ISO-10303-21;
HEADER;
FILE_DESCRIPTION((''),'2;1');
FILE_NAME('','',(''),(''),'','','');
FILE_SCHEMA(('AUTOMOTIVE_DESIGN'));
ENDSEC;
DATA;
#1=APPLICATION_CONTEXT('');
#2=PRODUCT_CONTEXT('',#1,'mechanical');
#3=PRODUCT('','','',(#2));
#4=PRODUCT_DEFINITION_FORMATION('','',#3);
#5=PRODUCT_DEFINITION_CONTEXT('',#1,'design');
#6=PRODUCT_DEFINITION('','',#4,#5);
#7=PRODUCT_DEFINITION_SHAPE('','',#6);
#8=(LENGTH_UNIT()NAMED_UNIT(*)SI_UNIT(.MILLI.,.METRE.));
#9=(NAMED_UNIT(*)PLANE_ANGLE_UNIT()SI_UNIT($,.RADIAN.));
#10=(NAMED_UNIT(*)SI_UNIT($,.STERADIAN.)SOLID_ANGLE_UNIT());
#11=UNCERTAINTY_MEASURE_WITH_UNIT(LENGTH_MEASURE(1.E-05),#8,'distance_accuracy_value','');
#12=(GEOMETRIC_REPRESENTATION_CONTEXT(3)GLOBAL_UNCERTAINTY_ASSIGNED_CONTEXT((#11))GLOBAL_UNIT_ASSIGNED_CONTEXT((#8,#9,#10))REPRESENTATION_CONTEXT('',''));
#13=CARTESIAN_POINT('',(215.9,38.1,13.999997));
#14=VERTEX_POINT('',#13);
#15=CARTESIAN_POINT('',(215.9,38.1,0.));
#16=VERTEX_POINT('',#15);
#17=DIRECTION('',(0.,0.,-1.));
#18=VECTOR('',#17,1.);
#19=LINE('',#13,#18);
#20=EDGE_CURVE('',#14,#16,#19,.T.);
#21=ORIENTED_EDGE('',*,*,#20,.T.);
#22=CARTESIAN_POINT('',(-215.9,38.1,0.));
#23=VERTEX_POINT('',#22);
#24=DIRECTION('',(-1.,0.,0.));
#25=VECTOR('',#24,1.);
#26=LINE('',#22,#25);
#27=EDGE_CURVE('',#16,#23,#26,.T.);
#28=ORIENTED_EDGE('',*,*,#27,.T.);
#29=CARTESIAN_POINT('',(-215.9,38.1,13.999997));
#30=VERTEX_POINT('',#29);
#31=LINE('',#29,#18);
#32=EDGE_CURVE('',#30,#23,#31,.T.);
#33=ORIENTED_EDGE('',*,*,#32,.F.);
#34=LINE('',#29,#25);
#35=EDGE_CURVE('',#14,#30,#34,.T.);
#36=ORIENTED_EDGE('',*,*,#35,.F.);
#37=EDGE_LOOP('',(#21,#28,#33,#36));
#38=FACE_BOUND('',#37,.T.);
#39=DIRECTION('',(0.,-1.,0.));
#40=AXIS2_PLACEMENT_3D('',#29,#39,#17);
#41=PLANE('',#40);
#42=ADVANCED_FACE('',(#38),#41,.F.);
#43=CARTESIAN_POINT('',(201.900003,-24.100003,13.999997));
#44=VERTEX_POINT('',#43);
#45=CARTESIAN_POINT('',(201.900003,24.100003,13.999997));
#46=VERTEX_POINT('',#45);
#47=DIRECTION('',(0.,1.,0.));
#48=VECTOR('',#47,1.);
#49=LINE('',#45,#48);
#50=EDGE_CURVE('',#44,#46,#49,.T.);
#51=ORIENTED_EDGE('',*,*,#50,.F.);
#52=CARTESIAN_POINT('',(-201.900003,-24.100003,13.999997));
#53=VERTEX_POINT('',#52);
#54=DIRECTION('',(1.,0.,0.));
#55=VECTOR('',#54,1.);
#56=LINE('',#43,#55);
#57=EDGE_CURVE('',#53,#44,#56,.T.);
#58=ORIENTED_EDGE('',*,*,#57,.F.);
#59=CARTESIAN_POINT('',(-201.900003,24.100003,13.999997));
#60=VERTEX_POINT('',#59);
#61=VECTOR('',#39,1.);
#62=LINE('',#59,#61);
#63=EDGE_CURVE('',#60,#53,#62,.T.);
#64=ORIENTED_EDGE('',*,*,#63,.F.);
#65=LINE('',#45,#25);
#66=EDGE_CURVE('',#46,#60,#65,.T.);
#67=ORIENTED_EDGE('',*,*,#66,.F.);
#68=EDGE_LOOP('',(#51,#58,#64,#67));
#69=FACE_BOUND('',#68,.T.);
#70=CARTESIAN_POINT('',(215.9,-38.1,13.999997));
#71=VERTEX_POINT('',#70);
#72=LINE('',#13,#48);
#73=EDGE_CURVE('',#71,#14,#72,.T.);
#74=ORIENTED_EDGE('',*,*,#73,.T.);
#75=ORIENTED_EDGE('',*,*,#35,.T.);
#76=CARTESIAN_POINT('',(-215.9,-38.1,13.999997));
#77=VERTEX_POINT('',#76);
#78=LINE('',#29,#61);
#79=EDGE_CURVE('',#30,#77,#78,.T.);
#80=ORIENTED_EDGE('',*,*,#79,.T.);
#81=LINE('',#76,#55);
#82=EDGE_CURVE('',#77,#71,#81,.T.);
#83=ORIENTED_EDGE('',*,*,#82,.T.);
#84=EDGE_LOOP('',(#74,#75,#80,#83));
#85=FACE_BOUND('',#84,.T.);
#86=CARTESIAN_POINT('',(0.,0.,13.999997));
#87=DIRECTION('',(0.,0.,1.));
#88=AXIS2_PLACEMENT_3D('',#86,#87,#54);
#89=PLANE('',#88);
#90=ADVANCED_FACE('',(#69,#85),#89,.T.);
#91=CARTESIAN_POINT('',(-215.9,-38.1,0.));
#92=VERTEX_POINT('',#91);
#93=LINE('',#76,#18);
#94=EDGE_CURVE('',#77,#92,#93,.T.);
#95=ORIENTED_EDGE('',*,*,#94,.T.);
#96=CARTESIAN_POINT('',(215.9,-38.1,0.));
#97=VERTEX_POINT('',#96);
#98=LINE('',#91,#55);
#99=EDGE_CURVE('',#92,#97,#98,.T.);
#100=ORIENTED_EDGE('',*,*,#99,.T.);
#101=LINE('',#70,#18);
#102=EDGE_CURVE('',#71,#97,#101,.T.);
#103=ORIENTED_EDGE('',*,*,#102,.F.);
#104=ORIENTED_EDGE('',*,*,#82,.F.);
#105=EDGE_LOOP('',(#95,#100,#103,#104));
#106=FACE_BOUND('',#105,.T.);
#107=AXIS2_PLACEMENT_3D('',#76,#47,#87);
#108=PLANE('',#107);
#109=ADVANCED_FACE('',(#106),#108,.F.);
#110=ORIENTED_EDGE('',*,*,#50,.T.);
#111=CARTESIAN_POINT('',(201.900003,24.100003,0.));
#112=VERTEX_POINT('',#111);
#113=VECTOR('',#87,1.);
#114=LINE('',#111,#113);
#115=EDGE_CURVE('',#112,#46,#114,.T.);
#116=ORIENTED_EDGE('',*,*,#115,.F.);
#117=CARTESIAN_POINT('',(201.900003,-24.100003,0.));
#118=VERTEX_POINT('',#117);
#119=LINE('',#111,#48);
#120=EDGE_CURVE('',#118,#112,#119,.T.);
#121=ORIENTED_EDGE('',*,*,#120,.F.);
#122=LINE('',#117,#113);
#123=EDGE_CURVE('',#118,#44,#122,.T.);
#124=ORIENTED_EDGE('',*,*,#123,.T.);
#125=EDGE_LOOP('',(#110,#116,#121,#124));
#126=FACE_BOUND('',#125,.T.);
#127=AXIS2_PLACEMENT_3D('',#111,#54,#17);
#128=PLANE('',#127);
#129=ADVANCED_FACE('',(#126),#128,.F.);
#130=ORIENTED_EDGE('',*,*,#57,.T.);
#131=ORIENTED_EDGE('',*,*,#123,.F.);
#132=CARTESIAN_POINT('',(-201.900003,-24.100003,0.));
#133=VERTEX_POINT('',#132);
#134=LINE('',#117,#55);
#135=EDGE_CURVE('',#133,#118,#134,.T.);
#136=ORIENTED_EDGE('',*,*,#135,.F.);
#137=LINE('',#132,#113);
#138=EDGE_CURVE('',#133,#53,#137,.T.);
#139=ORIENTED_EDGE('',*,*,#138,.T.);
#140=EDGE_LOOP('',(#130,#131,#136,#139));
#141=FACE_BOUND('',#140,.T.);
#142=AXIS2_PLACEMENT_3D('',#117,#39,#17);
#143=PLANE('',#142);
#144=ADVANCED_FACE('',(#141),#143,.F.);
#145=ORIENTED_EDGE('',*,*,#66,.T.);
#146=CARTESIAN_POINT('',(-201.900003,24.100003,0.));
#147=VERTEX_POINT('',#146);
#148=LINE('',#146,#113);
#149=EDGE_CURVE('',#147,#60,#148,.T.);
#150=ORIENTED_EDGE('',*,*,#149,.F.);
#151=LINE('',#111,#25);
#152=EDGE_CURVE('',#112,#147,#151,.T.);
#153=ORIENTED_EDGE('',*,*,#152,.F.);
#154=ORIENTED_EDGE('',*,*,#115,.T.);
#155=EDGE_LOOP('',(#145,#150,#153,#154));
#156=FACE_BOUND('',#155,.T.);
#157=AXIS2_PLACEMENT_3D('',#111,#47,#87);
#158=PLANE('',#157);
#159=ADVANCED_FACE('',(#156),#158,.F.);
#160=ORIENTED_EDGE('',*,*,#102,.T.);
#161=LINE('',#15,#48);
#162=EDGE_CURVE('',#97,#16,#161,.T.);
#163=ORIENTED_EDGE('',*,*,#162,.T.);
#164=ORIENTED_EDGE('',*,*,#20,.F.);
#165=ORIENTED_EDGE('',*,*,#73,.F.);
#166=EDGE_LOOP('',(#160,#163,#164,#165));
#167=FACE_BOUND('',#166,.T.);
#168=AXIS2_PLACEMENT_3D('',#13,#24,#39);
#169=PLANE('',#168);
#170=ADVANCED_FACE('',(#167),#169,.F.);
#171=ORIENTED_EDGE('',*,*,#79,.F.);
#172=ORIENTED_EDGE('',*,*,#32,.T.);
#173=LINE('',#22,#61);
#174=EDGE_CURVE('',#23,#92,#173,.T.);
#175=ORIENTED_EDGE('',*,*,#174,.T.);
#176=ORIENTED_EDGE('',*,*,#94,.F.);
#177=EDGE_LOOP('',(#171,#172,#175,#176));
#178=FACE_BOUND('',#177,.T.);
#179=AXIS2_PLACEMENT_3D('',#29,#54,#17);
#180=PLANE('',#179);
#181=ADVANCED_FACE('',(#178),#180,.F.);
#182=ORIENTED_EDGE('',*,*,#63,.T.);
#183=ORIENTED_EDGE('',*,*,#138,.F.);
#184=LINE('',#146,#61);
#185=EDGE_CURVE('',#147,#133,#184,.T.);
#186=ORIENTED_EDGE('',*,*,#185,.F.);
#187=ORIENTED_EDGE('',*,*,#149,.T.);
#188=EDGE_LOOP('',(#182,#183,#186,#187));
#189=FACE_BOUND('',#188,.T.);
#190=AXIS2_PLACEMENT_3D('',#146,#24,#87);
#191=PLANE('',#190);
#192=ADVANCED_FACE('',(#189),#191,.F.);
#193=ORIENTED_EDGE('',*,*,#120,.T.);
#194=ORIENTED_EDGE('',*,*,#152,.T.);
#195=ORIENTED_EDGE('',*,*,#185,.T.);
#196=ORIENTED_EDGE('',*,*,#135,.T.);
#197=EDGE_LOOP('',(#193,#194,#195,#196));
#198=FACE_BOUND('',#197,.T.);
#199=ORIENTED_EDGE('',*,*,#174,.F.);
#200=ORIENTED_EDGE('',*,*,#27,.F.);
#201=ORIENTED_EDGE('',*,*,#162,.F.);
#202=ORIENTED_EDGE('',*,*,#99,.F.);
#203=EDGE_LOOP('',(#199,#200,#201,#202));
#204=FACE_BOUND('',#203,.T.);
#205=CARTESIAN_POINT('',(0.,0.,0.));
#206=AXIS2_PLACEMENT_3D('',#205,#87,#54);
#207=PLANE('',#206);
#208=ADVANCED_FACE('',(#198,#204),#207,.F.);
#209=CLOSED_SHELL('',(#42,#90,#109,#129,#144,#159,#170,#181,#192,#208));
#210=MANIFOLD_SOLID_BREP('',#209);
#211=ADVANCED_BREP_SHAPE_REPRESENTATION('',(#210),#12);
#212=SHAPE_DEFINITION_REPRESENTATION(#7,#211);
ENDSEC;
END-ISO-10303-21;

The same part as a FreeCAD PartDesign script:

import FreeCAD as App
import Part
import Sketcher
Q = App.Units.Quantity


def add_polygon(sketch, points):
    """Adds a closed chain of lines whose ends are joined by coincident constraints."""
    first, n = sketch.GeometryCount, len(points)
    for a, b in zip(points, points[1:] + points[:1]):
        sketch.addGeometry(Part.LineSegment(App.Vector(*a, 0), App.Vector(*b, 0)), False)
    for i in range(n):
        sketch.addConstraint(Sketcher.Constraint("Coincident", first + i, 2, first + (i + 1) % n, 1))

doc = App.newDocument("Part")
body = doc.addObject("PartDesign::Body", "Body")

# Sketch on XY plane
sketch1 = doc.addObject("Sketcher::SketchObject", "Sketch")
body.addObject(sketch1)
sketch1.AttachmentSupport = (doc.XY_Plane, [""])
sketch1.MapMode = "FlatFace"
add_polygon(sketch1, [(-215.9, 38.1), (-215.9, -38.1), (215.9, -38.1), (215.9, 38.1)])  # lines 0-3
sketch1.addConstraint(Sketcher.Constraint("Vertical", 0))
sketch1.addConstraint(Sketcher.Constraint("Horizontal", 1))
sketch1.addConstraint(Sketcher.Constraint("Vertical", 2))
sketch1.addConstraint(Sketcher.Constraint("Horizontal", 3))
sketch1.addConstraint(Sketcher.Constraint("Symmetric", 0, 2, 2, 2, -1, 1))
sketch1.addConstraint(Sketcher.Constraint("DistanceX", 1, 1, 1, 2, Q("17 in")))
sketch1.addConstraint(Sketcher.Constraint("DistanceY", 0, 2, 0, 1, Q("3 in")))
pad1 = doc.addObject("PartDesign::Pad", "Pad")
body.addObject(pad1)
pad1.Profile = sketch1
pad1.Length = 13.999997

# Sketch on XY plane
sketch2 = doc.addObject("Sketcher::SketchObject", "Sketch001")
body.addObject(sketch2)
sketch2.AttachmentSupport = (doc.XY_Plane, [""])
sketch2.MapMode = "FlatFace"
sketch2.AttachmentOffset = App.Placement(App.Vector(0, 0, 13.999997), App.Rotation())
add_polygon(sketch2, [(-201.900003, 24.100003), (-201.900003, -24.100003), (201.900003, -24.100003), (201.900003, 24.100003)])  # lines 0-3
sketch2.addConstraint(Sketcher.Constraint("Vertical", 0))
sketch2.addConstraint(Sketcher.Constraint("Horizontal", 1))
sketch2.addConstraint(Sketcher.Constraint("Vertical", 2))
sketch2.addConstraint(Sketcher.Constraint("Horizontal", 3))
sketch2.addConstraint(Sketcher.Constraint("Symmetric", 0, 2, 2, 2, -1, 1))
sketch2.addConstraint(Sketcher.Constraint("DistanceX", 1, 1, 1, 2, 403.800005))
sketch2.addConstraint(Sketcher.Constraint("DistanceY", 0, 2, 0, 1, 48.200005))
pocket1 = doc.addObject("PartDesign::Pocket", "Pocket")
body.addObject(pocket1)
pocket1.Profile = sketch2
pocket1.Length = 13.999997

doc.recompute()
